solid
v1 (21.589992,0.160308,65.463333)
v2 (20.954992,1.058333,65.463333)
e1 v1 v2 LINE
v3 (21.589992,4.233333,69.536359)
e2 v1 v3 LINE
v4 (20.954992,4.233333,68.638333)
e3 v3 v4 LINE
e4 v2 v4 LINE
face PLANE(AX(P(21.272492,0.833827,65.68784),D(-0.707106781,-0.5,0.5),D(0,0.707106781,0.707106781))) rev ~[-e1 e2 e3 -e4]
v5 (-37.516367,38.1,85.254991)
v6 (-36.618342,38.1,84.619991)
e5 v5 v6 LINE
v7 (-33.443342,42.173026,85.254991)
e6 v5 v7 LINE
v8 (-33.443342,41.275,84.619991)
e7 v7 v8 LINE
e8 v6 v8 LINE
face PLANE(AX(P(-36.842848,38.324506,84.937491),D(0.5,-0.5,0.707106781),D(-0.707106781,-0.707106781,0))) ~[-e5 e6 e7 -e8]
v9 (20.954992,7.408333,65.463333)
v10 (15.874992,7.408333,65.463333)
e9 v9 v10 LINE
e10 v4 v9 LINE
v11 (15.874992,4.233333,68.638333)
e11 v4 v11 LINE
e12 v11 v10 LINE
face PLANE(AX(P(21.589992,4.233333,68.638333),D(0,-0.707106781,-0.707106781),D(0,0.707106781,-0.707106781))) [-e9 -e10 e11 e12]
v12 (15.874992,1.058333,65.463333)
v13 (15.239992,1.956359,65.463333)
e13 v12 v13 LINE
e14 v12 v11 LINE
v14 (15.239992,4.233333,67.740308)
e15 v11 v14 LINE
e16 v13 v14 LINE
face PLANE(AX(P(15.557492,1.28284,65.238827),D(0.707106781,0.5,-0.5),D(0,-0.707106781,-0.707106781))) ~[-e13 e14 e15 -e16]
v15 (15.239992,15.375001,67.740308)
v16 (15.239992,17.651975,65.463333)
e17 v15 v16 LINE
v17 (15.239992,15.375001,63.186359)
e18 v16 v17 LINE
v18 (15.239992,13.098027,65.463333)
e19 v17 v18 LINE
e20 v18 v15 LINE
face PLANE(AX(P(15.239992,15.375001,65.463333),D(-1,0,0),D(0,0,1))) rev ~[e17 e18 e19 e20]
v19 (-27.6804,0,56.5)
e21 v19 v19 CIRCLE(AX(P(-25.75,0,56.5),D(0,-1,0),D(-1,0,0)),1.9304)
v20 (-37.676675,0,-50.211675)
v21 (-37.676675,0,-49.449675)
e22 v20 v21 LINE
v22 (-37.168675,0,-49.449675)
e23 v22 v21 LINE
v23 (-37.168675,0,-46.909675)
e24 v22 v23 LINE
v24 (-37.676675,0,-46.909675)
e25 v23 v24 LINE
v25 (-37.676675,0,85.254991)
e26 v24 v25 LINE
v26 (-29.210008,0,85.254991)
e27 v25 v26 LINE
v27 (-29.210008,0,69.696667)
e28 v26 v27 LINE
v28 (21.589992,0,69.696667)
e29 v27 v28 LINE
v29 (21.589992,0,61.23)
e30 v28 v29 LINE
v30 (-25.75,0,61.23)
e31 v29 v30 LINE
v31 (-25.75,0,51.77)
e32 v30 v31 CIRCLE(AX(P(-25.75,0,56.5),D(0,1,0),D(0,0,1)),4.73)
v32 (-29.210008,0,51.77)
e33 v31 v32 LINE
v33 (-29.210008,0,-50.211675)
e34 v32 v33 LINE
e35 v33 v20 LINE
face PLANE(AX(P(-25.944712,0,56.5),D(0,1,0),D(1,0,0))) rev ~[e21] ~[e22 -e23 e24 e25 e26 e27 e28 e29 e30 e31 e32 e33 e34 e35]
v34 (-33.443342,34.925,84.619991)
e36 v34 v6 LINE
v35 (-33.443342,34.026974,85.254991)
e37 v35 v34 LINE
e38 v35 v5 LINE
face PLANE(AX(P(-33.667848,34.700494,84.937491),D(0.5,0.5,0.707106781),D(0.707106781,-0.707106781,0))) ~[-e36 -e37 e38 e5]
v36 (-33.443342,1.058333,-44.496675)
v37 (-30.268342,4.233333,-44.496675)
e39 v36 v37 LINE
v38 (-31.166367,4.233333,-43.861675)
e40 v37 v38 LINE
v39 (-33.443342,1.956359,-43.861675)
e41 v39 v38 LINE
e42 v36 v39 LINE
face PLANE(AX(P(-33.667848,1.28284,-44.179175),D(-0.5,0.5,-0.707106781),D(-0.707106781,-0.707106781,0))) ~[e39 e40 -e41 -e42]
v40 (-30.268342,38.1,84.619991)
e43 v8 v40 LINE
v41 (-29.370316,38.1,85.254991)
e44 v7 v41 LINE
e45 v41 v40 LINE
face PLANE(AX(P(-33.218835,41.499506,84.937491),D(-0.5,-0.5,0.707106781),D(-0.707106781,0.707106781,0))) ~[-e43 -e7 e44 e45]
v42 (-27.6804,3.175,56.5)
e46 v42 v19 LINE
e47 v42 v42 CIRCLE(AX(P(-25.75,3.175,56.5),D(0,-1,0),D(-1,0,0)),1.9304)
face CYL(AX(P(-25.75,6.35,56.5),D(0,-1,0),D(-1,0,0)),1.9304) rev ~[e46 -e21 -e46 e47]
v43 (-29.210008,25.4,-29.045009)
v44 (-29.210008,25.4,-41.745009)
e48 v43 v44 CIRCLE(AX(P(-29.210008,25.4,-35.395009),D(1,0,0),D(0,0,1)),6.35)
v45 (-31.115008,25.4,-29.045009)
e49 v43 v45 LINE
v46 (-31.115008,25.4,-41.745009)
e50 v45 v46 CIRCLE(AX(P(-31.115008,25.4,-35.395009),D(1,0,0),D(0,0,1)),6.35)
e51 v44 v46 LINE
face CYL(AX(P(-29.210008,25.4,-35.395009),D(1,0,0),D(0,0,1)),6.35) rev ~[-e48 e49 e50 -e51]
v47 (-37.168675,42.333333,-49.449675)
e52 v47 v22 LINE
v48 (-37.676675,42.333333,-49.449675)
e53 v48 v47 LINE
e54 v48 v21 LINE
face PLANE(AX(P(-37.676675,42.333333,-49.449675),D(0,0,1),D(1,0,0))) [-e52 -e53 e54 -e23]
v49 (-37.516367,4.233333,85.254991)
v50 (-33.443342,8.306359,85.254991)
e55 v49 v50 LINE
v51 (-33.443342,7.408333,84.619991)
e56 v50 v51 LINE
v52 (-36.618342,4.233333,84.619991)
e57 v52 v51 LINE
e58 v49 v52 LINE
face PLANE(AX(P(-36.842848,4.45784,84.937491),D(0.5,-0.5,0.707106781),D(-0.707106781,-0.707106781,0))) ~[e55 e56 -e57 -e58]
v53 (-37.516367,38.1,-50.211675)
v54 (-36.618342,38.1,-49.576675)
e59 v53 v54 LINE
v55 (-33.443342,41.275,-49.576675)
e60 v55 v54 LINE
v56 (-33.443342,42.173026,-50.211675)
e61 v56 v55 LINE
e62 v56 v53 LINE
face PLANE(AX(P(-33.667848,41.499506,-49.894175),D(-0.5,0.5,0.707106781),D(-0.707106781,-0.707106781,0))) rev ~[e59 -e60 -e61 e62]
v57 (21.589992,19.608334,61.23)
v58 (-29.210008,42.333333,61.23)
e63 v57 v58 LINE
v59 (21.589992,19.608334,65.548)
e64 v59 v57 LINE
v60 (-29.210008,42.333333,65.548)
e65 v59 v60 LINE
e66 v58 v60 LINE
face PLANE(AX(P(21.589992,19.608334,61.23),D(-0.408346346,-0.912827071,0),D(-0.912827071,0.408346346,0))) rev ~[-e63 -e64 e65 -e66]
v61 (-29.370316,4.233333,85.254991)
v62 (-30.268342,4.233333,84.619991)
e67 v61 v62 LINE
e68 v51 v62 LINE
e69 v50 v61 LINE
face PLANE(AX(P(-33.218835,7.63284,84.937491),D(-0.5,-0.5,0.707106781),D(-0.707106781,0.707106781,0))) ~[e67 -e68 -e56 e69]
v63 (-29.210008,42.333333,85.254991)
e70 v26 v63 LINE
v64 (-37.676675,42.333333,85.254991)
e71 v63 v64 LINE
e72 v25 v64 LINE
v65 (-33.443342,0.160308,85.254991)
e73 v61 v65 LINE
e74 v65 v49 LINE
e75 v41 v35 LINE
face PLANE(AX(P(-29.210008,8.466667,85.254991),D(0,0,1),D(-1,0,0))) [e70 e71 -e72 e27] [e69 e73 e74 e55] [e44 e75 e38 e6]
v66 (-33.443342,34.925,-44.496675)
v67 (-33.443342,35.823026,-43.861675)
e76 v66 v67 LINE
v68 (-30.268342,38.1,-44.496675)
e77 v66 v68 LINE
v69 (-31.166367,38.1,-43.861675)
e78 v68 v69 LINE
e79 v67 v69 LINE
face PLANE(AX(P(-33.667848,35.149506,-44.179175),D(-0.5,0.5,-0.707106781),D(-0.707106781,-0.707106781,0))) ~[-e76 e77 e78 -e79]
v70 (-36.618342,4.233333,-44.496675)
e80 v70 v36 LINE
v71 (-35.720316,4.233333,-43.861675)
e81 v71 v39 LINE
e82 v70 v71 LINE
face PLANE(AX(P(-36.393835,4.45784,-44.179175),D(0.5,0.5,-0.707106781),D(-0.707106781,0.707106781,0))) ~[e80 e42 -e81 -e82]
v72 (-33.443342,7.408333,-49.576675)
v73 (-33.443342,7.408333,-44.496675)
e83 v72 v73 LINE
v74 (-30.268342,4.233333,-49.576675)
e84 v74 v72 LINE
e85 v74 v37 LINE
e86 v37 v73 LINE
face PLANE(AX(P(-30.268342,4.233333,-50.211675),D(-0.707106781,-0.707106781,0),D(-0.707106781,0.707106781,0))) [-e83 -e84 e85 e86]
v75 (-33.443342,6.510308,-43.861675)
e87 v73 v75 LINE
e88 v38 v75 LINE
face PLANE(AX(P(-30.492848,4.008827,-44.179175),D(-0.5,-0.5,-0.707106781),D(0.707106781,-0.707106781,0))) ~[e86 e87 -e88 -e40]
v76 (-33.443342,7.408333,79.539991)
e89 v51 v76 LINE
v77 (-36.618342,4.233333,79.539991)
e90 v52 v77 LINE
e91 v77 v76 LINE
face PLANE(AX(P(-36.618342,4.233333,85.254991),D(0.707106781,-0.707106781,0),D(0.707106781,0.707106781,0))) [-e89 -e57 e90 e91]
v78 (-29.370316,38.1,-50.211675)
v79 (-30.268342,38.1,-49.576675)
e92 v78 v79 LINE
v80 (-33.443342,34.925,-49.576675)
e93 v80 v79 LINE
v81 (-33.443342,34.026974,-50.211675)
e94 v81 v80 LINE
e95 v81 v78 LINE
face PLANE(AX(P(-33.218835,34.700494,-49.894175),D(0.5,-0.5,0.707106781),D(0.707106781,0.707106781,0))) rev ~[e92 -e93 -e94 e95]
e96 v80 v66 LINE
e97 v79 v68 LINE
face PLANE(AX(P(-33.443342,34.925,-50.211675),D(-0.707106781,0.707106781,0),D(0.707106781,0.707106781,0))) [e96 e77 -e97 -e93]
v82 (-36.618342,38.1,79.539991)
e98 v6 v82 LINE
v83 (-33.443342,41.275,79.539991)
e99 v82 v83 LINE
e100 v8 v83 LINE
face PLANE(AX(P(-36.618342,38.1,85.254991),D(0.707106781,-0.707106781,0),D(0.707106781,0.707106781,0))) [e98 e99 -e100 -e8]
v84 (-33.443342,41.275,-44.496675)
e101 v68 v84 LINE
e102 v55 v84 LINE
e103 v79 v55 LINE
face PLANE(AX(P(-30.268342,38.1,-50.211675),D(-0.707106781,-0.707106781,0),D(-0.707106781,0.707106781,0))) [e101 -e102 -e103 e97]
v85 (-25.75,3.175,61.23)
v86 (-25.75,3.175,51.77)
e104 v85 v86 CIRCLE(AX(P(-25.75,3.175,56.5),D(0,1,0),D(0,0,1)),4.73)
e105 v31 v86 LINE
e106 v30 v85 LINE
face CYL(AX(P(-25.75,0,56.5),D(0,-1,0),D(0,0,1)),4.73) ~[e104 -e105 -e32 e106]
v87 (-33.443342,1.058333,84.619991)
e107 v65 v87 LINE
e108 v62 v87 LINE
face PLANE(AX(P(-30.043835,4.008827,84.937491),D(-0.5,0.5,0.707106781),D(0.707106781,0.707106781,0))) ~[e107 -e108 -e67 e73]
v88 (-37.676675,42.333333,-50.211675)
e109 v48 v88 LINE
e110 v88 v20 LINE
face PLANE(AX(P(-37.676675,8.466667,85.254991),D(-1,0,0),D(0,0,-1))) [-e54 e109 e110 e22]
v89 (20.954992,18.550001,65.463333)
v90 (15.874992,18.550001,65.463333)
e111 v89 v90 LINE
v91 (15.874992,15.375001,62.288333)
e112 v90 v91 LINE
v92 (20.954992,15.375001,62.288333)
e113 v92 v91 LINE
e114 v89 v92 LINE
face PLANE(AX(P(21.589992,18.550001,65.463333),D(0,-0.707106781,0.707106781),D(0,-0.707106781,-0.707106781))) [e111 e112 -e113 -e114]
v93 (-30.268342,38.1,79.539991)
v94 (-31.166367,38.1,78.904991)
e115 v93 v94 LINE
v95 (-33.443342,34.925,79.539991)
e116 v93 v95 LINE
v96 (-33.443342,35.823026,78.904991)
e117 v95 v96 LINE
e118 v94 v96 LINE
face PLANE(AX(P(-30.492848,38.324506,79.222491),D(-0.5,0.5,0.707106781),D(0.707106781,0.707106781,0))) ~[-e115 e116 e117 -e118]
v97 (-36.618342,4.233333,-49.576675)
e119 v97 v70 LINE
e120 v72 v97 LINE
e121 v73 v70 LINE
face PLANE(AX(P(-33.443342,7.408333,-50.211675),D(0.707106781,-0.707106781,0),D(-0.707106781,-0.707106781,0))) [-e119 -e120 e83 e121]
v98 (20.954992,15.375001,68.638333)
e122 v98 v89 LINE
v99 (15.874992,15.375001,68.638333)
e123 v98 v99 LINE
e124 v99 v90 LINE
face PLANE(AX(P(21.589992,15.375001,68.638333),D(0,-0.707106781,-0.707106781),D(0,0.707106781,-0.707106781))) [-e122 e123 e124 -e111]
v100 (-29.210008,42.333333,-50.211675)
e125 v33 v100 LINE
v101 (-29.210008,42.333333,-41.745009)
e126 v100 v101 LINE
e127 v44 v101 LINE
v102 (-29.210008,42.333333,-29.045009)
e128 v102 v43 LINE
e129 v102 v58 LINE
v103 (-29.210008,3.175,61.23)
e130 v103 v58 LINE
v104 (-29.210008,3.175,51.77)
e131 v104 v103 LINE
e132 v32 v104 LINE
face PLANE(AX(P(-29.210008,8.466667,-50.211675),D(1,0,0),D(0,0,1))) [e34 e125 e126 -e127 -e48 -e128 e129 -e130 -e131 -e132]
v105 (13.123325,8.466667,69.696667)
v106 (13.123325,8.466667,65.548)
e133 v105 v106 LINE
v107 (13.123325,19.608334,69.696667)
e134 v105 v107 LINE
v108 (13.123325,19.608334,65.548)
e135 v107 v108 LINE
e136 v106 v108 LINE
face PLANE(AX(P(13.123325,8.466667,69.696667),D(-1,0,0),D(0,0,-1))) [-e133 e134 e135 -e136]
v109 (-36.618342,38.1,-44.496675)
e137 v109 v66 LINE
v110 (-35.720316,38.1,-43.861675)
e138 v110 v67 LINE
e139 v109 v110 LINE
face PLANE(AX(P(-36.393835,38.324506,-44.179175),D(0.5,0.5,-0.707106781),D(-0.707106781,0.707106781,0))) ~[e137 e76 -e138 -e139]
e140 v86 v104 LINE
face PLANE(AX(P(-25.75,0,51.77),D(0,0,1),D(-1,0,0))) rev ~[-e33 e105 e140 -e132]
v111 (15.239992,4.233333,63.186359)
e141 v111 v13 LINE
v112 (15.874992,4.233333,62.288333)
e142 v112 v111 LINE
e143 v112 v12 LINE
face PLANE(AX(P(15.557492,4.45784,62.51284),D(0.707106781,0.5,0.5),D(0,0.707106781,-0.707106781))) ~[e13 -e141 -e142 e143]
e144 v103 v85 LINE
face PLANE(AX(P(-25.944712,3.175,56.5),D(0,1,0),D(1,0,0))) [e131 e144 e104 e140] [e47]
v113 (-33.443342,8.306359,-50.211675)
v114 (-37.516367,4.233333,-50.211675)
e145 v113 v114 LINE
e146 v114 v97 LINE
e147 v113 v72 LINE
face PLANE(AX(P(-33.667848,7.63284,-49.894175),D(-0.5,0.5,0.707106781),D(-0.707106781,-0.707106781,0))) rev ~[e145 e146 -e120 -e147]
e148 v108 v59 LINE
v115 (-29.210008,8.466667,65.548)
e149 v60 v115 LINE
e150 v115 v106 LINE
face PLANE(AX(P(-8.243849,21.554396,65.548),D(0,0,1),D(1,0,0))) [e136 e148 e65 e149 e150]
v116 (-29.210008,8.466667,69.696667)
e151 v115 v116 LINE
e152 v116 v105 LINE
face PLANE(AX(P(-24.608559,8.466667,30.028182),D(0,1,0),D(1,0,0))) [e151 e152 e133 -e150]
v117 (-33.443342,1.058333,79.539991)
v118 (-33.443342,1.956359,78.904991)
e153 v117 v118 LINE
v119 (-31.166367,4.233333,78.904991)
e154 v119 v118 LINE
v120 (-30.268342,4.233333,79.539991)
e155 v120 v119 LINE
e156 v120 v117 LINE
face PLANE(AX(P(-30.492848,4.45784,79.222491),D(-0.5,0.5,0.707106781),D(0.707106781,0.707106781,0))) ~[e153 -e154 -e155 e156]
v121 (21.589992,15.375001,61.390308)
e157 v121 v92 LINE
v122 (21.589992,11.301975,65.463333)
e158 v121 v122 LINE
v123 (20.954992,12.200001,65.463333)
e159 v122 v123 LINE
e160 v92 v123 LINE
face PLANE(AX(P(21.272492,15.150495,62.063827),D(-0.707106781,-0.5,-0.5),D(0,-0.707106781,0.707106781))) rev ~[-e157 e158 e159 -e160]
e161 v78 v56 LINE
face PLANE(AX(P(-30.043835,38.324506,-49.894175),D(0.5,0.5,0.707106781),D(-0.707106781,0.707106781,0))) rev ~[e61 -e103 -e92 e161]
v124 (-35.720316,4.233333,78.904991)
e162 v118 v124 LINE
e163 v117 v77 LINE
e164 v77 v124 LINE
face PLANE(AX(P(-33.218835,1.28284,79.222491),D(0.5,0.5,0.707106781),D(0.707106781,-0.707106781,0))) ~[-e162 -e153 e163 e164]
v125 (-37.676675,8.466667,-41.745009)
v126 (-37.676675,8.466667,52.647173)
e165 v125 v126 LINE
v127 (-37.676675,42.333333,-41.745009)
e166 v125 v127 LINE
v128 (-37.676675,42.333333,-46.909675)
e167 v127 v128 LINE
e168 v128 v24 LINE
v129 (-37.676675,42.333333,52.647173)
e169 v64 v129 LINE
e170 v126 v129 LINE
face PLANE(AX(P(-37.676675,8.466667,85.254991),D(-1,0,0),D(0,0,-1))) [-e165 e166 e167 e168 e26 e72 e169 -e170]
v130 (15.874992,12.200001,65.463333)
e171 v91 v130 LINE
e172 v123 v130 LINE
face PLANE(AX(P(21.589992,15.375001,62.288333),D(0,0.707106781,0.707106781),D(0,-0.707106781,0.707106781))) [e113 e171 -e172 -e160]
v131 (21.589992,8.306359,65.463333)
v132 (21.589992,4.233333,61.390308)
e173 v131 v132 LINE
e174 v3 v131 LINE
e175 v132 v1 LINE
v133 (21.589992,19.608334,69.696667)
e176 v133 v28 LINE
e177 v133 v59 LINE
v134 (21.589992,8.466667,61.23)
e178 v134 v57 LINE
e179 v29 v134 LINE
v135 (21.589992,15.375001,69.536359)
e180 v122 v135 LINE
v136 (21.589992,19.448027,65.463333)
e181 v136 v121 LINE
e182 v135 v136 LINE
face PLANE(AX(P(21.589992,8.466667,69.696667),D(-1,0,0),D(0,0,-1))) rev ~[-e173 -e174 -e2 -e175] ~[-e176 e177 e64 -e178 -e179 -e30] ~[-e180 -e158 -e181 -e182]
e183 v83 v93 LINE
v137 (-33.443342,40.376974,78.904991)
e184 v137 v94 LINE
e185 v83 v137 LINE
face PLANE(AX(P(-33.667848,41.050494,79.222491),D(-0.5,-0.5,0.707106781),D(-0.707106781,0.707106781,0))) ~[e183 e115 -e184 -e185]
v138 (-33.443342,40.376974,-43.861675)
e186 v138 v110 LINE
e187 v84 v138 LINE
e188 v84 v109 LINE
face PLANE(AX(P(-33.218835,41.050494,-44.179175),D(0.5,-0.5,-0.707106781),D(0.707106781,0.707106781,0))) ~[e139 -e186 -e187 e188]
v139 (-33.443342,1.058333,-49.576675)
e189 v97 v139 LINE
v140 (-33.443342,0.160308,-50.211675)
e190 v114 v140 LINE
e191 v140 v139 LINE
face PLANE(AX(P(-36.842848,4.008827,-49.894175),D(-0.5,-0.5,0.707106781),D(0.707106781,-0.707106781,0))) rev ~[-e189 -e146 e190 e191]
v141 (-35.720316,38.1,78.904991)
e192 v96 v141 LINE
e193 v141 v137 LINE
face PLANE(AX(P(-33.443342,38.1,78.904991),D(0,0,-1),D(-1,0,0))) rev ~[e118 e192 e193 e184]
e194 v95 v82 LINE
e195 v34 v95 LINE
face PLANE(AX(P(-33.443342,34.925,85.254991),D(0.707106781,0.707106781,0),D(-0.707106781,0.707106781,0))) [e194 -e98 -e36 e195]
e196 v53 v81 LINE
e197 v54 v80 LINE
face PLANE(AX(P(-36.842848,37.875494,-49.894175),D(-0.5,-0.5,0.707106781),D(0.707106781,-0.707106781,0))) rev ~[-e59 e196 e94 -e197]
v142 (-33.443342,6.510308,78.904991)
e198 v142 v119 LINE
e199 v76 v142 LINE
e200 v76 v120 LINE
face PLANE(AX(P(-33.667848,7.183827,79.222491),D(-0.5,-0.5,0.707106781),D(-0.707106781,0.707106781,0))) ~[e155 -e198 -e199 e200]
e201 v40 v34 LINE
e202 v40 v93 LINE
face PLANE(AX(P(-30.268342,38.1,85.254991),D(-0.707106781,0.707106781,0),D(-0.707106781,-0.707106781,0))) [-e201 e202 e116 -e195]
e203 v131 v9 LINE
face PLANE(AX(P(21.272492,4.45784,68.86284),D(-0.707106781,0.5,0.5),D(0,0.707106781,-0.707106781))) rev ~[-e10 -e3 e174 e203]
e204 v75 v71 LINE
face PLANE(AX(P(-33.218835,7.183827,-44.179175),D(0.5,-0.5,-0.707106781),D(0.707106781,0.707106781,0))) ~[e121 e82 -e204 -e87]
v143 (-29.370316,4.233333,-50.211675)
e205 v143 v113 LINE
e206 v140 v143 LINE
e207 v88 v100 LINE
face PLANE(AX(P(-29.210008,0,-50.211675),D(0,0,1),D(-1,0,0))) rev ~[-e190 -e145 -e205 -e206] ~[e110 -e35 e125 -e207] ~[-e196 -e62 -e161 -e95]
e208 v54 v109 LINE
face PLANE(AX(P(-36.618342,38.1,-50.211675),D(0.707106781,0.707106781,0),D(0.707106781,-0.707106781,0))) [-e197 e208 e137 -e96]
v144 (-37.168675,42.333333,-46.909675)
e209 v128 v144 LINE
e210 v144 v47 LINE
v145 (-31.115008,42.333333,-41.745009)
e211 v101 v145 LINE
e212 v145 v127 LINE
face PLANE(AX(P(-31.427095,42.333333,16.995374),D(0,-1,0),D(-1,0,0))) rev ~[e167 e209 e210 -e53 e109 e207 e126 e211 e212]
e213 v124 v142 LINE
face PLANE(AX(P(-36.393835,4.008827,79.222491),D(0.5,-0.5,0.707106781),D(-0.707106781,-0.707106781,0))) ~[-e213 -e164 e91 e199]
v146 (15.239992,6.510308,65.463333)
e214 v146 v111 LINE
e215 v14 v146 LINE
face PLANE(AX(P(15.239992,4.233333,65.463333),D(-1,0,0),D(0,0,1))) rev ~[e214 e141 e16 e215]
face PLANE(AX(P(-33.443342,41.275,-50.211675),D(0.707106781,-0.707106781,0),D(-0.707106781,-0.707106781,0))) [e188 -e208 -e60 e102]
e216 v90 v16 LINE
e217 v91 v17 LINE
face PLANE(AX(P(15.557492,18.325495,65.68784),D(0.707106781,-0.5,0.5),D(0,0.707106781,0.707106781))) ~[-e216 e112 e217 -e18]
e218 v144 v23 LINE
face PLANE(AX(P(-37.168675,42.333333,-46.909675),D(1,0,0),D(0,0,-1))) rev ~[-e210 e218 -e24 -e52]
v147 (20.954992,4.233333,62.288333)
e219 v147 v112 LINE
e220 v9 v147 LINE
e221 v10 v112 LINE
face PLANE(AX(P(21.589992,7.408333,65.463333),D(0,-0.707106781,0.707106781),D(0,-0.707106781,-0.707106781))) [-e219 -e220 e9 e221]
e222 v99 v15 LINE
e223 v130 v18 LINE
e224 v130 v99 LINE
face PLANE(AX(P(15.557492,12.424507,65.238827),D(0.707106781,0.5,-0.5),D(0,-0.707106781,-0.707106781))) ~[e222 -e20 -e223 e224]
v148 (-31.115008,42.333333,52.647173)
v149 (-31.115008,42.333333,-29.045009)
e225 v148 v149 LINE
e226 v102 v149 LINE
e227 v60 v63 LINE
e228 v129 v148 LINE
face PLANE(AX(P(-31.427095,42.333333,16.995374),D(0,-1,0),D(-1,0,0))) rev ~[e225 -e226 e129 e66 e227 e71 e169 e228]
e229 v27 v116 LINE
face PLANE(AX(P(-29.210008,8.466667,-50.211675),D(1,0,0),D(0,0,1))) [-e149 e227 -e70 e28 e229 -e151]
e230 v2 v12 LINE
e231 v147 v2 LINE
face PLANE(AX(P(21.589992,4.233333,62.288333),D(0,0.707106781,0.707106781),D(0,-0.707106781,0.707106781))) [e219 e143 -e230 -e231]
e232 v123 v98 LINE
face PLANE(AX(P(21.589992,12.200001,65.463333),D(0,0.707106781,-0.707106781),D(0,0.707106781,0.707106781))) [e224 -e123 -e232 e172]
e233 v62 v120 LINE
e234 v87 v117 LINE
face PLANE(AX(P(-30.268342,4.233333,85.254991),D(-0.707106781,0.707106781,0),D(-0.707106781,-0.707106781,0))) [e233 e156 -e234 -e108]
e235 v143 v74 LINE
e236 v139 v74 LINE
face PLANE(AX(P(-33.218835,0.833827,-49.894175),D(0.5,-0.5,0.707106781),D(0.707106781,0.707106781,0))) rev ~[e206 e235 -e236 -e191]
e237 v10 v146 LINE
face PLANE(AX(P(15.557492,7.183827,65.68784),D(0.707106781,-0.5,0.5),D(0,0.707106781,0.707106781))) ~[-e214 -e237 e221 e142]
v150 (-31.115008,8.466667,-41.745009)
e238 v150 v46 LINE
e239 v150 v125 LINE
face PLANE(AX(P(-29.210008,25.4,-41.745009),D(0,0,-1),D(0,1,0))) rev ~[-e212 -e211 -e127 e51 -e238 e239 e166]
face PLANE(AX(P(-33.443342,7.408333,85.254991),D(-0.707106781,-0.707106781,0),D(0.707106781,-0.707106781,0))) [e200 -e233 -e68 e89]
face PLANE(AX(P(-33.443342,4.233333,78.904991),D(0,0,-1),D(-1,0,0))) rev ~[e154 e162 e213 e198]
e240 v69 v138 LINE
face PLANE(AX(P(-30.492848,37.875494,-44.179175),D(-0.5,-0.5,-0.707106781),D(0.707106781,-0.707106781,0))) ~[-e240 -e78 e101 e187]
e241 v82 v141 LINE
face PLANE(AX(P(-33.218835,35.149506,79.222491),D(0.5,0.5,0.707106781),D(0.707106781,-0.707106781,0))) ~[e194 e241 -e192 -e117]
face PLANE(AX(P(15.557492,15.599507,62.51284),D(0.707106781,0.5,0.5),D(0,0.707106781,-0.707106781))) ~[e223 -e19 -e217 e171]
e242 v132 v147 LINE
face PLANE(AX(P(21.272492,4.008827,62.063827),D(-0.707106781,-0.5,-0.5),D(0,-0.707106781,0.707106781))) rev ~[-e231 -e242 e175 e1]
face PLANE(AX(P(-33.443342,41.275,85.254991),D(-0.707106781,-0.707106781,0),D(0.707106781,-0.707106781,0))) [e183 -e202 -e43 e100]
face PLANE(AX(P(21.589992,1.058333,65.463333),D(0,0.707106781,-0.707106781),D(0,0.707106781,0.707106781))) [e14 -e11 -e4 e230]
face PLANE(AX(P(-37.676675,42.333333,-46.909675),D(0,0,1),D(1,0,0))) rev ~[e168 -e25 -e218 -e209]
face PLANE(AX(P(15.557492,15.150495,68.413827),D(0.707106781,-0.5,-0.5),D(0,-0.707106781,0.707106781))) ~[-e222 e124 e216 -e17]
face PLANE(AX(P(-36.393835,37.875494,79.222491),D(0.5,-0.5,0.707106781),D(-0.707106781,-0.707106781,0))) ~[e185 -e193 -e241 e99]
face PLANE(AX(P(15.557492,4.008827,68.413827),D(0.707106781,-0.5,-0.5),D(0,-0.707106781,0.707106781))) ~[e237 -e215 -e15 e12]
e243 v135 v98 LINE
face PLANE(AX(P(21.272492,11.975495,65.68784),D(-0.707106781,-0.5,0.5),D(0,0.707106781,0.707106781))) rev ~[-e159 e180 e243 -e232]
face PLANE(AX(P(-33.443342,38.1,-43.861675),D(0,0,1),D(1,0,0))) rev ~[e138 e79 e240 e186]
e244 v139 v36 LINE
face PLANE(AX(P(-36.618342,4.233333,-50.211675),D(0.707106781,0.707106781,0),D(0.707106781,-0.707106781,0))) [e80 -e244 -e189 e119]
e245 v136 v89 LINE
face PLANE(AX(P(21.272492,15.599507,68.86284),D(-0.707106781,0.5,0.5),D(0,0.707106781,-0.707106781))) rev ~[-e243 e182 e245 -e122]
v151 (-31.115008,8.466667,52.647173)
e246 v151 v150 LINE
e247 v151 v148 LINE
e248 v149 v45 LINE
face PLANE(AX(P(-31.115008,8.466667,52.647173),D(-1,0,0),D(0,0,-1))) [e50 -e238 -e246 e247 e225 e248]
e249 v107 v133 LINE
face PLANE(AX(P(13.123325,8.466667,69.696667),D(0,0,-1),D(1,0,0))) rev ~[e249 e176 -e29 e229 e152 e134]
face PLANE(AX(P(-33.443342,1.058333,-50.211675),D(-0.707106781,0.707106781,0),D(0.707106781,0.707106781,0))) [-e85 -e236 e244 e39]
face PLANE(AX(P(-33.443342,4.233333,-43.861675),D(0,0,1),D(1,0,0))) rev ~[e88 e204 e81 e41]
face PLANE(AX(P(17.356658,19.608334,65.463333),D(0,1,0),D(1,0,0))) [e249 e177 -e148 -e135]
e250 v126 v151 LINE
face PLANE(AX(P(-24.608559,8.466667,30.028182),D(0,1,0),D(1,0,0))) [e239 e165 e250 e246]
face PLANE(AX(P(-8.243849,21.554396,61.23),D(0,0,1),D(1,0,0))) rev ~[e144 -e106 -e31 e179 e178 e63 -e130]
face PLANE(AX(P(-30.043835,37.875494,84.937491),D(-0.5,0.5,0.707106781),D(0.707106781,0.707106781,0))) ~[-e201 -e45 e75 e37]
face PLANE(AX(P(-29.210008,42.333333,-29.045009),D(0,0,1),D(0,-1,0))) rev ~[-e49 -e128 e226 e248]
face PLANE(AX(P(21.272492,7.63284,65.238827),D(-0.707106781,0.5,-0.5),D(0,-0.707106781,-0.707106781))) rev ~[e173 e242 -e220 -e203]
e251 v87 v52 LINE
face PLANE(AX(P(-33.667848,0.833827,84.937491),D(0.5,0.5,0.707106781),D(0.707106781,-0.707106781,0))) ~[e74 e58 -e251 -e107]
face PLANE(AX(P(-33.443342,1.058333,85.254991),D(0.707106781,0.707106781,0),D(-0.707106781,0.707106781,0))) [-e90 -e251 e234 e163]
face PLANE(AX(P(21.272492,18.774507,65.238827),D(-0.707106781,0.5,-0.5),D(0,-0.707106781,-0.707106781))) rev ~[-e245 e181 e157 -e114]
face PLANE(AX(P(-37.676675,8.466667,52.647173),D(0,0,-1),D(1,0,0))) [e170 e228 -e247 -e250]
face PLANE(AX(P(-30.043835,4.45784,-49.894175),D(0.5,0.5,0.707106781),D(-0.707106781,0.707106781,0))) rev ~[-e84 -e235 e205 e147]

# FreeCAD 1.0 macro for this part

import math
import FreeCAD as App
import Part
import Sketcher
Q = App.Units.Quantity


def edges_at(feature, points):
    """Names of the edges that pass closest to the given points."""
    edges = feature.Shape.Edges
    near = lambda p: min(range(len(edges)), key=lambda i: edges[i].distToShape(Part.Vertex(*p))[0])
    return sorted({f"Edge{near(p) + 1}" for p in points})

doc = App.newDocument("Part")
params = doc.addObject("Spreadsheet::Sheet", "Params")
for row, (alias, value) in enumerate([
    ("sketch1_width", "2 in"),
    ("pad1_length", "8.466667 mm"),
    ("pad2_length", "0.125 in"),
    ("sketch3_diameter", "0.152 in"),
    ("hole_diameter", "0.152 in"),
    ("hole_depth", "0.125 in"),
    ("pad3_length", "33.866667 mm"),
    ("pad4_length", "11.141668 mm"),
    ("pad5_length", "0.17 in"),
    ("pocket1_length", "0.25 in"),
    ("pocket2_length", "0.25 in"),
    ("pocket3_length", "0.25 in"),
    ("chamfer_size", "0.025 in"),
    ("sketch10_radius", "0.25 in"),
    ("sketch11_height", "0.1 in"),
    ("sketch11_width", "0.02 in"),
], start=1):
    params.set(f"A{row}", alias)
    params.set(f"B{row}", "=" + value)
    params.setAlias(f"B{row}", alias)

body = doc.addObject("PartDesign::Body", "Body")

# Sketch on XZ plane
sketch1 = body.newObject("Sketcher::SketchObject", "Sketch")
sketch1.AttachmentSupport = (doc.getObject("XZ_Plane"), [""])
sketch1.MapMode = "FlatFace"
sketch1.addGeometry([
    Part.LineSegment(App.Vector(-29, -50, 0), App.Vector(-38, -50, 0)),  # 0
    Part.LineSegment(App.Vector(-38, -50, 0), App.Vector(-38, 85, 0)),  # 1
    Part.LineSegment(App.Vector(-38, 85, 0), App.Vector(-29, 85, 0)),  # 2
    Part.LineSegment(App.Vector(-29, 85, 0), App.Vector(-29, 70, 0)),  # 3
    Part.LineSegment(App.Vector(-29, 70, 0), App.Vector(22, 70, 0)),  # 4
    Part.LineSegment(App.Vector(22, 70, 0), App.Vector(22, 61, 0)),  # 5
    Part.LineSegment(App.Vector(22, 61, 0), App.Vector(-29, 61, 0)),  # 6
    Part.LineSegment(App.Vector(-29, 61, 0), App.Vector(-29, -50, 0)),  # 7
], False)
sketch1.addConstraint([
    Sketcher.Constraint("Coincident", 0, 2, 1, 1),
    Sketcher.Constraint("Coincident", 1, 2, 2, 1),
    Sketcher.Constraint("Coincident", 2, 2, 3, 1),
    Sketcher.Constraint("Coincident", 3, 2, 4, 1),
    Sketcher.Constraint("Coincident", 4, 2, 5, 1),
    Sketcher.Constraint("Coincident", 5, 2, 6, 1),
    Sketcher.Constraint("Coincident", 6, 2, 7, 1),
    Sketcher.Constraint("Coincident", 7, 2, 0, 1),
    Sketcher.Constraint("Horizontal", 0),
    Sketcher.Constraint("Vertical", 1),
    Sketcher.Constraint("Horizontal", 2),
    Sketcher.Constraint("Vertical", 3),
    Sketcher.Constraint("Horizontal", 4),
    Sketcher.Constraint("Vertical", 5),
    Sketcher.Constraint("Horizontal", 6),
    Sketcher.Constraint("Vertical", 7),
    Sketcher.Constraint("Vertical", 3, 2, 6, 2),
    Sketcher.Constraint("Equal", 2, 5),
    Sketcher.Constraint("DistanceX", 4, 1, 4, 2, Q("2 in")),
    Sketcher.Constraint("DistanceY", -1, 1, 5, 2, Q("61.23 mm")),
    Sketcher.Constraint("DistanceX", 0, 2, 0, 1, Q("8.466667 mm")),
    Sketcher.Constraint("DistanceY", 1, 1, 1, 2, Q("135.466667 mm")),
    Sketcher.Constraint("DistanceY", 3, 2, 3, 1, Q("15.558325 mm")),
    Sketcher.Constraint("DistanceX", 2, 2, -1, 1, Q("29.210008 mm")),
])
sketch1.setExpression("Constraints[18]", "Params.sketch1_width")
pad1 = body.newObject("PartDesign::Pad", "Pad")
pad1.Profile = sketch1
pad1.setExpression("Length", "Params.pad1_length")
pad1.Reversed = True

# Sketch on XZ plane
sketch2 = body.newObject("Sketcher::SketchObject", "Sketch001")
sketch2.AttachmentSupport = (doc.getObject("XZ_Plane"), [""])
sketch2.MapMode = "FlatFace"
sketch2.addGeometry([
    Part.LineSegment(App.Vector(-25.8, 51.8, 0), App.Vector(-29.2, 51.8, 0)),
    Part.LineSegment(App.Vector(-29.2, 51.8, 0), App.Vector(-29.2, 61.2, 0)),
    Part.LineSegment(App.Vector(-29.2, 61.2, 0), App.Vector(-25.8, 61.2, 0)),
    Part.ArcOfCircle(Part.Circle(App.Vector(-25.8, 56.5, 0), App.Vector(0, 0, 1), 4.7), math.radians(-90), math.radians(90)),
], False)
sketch2.addConstraint([
    Sketcher.Constraint("Coincident", 0, 2, 1, 1),
    Sketcher.Constraint("Coincident", 1, 2, 2, 1),
    Sketcher.Constraint("Tangent", 2, 2, 3, 2),
    Sketcher.Constraint("Tangent", 3, 1, 0, 1),
    Sketcher.Constraint("Horizontal", 0),
    Sketcher.Constraint("Vertical", 1),
    Sketcher.Constraint("Horizontal", 2),
    Sketcher.Constraint("Radius", 3, Q("4.73 mm")),
    Sketcher.Constraint("DistanceX", 0, 2, 0, 1, Q("3.460008 mm")),
    Sketcher.Constraint("DistanceX", 3, 3, -1, 1, Q("25.75 mm")),
    Sketcher.Constraint("DistanceY", -1, 1, 3, 3, Q("56.5 mm")),
])
pad2 = body.newObject("PartDesign::Pad", "Pad001")
pad2.Profile = sketch2
pad2.setExpression("Length", "Params.pad2_length")
pad2.Reversed = True

# Sketch on XZ plane
sketch3 = body.newObject("Sketcher::SketchObject", "Sketch002")
sketch3.AttachmentSupport = (doc.getObject("XZ_Plane"), [""])
sketch3.MapMode = "FlatFace"
sketch3.AttachmentOffset = App.Placement(App.Vector(0, 0, -0.125 * 25.4), App.Rotation())
sketch3.addGeometry([
    Part.Circle(App.Vector(-25.8, -56.5, 0), App.Vector(0, 0, 1), 1.9),
    Part.Circle(App.Vector(-25.8, 56.5, 0), App.Vector(0, 0, 1), 1.9),
], False)
sketch3.addConstraint([
    Sketcher.Constraint("Equal", 0, 1),
    Sketcher.Constraint("Symmetric", 0, 3, 1, 3, -1),
    Sketcher.Constraint("Diameter", 0, Q("0.152 in")),
    Sketcher.Constraint("DistanceX", 0, 3, -1, 1, Q("25.75 mm")),
    Sketcher.Constraint("DistanceY", 0, 3, -1, 1, Q("56.5 mm")),
])
sketch3.setExpression("Constraints[2]", "Params.sketch3_diameter")
doc.recompute()
hole = body.newObject("PartDesign::Hole", "Hole")
hole.Profile = sketch3
hole.ThreadType = "None"
hole.setExpression("Diameter", "Params.hole_diameter")
hole.DepthType = "Dimension"
hole.setExpression("Depth", "Params.hole_depth")
hole.DrillPoint = "Flat"
hole.Reversed = True

# Sketch on XZ plane
sketch4 = body.newObject("Sketcher::SketchObject", "Sketch003")
sketch4.AttachmentSupport = (doc.getObject("XZ_Plane"), [""])
sketch4.MapMode = "FlatFace"
sketch4.AttachmentOffset = App.Placement(App.Vector(0, 0, -8.466667), App.Rotation())
sketch4.addGeometry([
    Part.LineSegment(App.Vector(-38, 53, 0), App.Vector(-38, 85, 0)),  # 0
    Part.LineSegment(App.Vector(-38, 85, 0), App.Vector(-29, 85, 0)),  # 1
    Part.LineSegment(App.Vector(-29, 85, 0), App.Vector(-29, -50, 0)),  # 2
    Part.LineSegment(App.Vector(-29, -50, 0), App.Vector(-38, -50, 0)),  # 3
    Part.LineSegment(App.Vector(-38, -50, 0), App.Vector(-38, -42, 0)),  # 4
    Part.LineSegment(App.Vector(-38, -42, 0), App.Vector(-31, -42, 0)),  # 5
    Part.LineSegment(App.Vector(-31, -42, 0), App.Vector(-31, 53, 0)),  # 6
    Part.LineSegment(App.Vector(-31, 53, 0), App.Vector(-38, 53, 0)),  # 7
], False)
sketch4.addConstraint([
    Sketcher.Constraint("Coincident", 0, 2, 1, 1),
    Sketcher.Constraint("Coincident", 1, 2, 2, 1),
    Sketcher.Constraint("Coincident", 2, 2, 3, 1),
    Sketcher.Constraint("Coincident", 3, 2, 4, 1),
    Sketcher.Constraint("Coincident", 4, 2, 5, 1),
    Sketcher.Constraint("Coincident", 5, 2, 6, 1),
    Sketcher.Constraint("Coincident", 6, 2, 7, 1),
    Sketcher.Constraint("Coincident", 7, 2, 0, 1),
    Sketcher.Constraint("Vertical", 0),
    Sketcher.Constraint("Horizontal", 1),
    Sketcher.Constraint("Vertical", 2),
    Sketcher.Constraint("Horizontal", 3),
    Sketcher.Constraint("Vertical", 4),
    Sketcher.Constraint("Horizontal", 5),
    Sketcher.Constraint("Vertical", 6),
    Sketcher.Constraint("Horizontal", 7),
    Sketcher.Constraint("Vertical", 0, 2, 3, 2),
    Sketcher.Constraint("Equal", 3, 4),
    Sketcher.Constraint("DistanceY", 4, 2, 0, 2, Q("5 in")),
    Sketcher.Constraint("DistanceX", 5, 2, 2, 2, Q("0.075 in")),
    Sketcher.Constraint("DistanceY", 0, 1, 0, 2, Q("32.607819 mm")),
    Sketcher.Constraint("DistanceX", 1, 1, 1, 2, Q("8.466667 mm")),
    Sketcher.Constraint("DistanceY", -1, 1, 0, 2, Q("85.254991 mm")),
    Sketcher.Constraint("DistanceX", 1, 2, -1, 1, Q("29.210008 mm")),
])
pad3 = body.newObject("PartDesign::Pad", "Pad002")
pad3.Profile = sketch4
pad3.setExpression("Length", "Params.pad3_length")
pad3.Reversed = True

# Sketch on XZ plane
sketch5 = body.newObject("Sketcher::SketchObject", "Sketch004")
sketch5.AttachmentSupport = (doc.getObject("XZ_Plane"), [""])
sketch5.MapMode = "FlatFace"
sketch5.AttachmentOffset = App.Placement(App.Vector(0, 0, -8.466667), App.Rotation())
sketch5.addGeometry([
    Part.LineSegment(App.Vector(13, 61, 0), App.Vector(13, 70, 0)),
    Part.LineSegment(App.Vector(13, 70, 0), App.Vector(22, 70, 0)),
    Part.LineSegment(App.Vector(22, 70, 0), App.Vector(22, 61, 0)),
    Part.LineSegment(App.Vector(22, 61, 0), App.Vector(13, 61, 0)),
], False)
sketch5.addConstraint([
    Sketcher.Constraint("Coincident", 0, 2, 1, 1),
    Sketcher.Constraint("Coincident", 1, 2, 2, 1),
    Sketcher.Constraint("Coincident", 2, 2, 3, 1),
    Sketcher.Constraint("Coincident", 3, 2, 0, 1),
    Sketcher.Constraint("Vertical", 0),
    Sketcher.Constraint("Horizontal", 1),
    Sketcher.Constraint("Vertical", 2),
    Sketcher.Constraint("Horizontal", 3),
    Sketcher.Constraint("Equal", 3, 0),
    Sketcher.Constraint("DistanceY", -1, 1, 2, 2, Q("61.23 mm")),
    Sketcher.Constraint("DistanceX", 1, 1, 1, 2, Q("8.466667 mm")),
    Sketcher.Constraint("DistanceX", -1, 1, 1, 2, Q("21.589992 mm")),
])
pad4 = body.newObject("PartDesign::Pad", "Pad003")
pad4.Profile = sketch5
pad4.setExpression("Length", "Params.pad4_length")
pad4.Reversed = True

# Sketch on XY plane
sketch6 = body.newObject("Sketcher::SketchObject", "Sketch005")
sketch6.AttachmentSupport = (doc.getObject("XY_Plane"), [""])
sketch6.MapMode = "FlatFace"
sketch6.AttachmentOffset = App.Placement(App.Vector(0, 0, 61.23), App.Rotation())
sketch6.addGeometry([
    Part.LineSegment(App.Vector(-29, 42, 0), App.Vector(22, 20, 0)),  # 0
    Part.LineSegment(App.Vector(22, 20, 0), App.Vector(13, 20, 0)),  # 1
    Part.LineSegment(App.Vector(13, 20, 0), App.Vector(13, 8, 0)),  # 2
    Part.LineSegment(App.Vector(13, 8, 0), App.Vector(-29, 8, 0)),  # 3
    Part.LineSegment(App.Vector(-29, 8, 0), App.Vector(-29, 42, 0)),  # 4
], False)
sketch6.addConstraint([
    Sketcher.Constraint("Coincident", 0, 2, 1, 1),
    Sketcher.Constraint("Coincident", 1, 2, 2, 1),
    Sketcher.Constraint("Coincident", 2, 2, 3, 1),
    Sketcher.Constraint("Coincident", 3, 2, 4, 1),
    Sketcher.Constraint("Coincident", 4, 2, 0, 1),
    Sketcher.Constraint("Horizontal", 1),
    Sketcher.Constraint("Vertical", 2),
    Sketcher.Constraint("Horizontal", 3),
    Sketcher.Constraint("Vertical", 4),
    Sketcher.Constraint("DistanceX", 3, 2, 0, 2, Q("2 in")),
    Sketcher.Constraint("DistanceY", 1, 2, 4, 2, Q("22.724999 mm")),
    Sketcher.Constraint("DistanceX", 1, 2, 1, 1, Q("8.466667 mm")),
    Sketcher.Constraint("DistanceY", 2, 2, 2, 1, Q("11.141668 mm")),
    Sketcher.Constraint("DistanceX", -1, 1, 0, 2, Q("21.589992 mm")),
    Sketcher.Constraint("DistanceY", -1, 1, 0, 2, Q("19.608334 mm")),
])
pad5 = body.newObject("PartDesign::Pad", "Pad004")
pad5.Profile = sketch6
pad5.setExpression("Length", "Params.pad5_length")

# Sketch on XY plane
sketch7 = body.newObject("Sketcher::SketchObject", "Sketch006")
sketch7.AttachmentSupport = (doc.getObject("XY_Plane"), [""])
sketch7.MapMode = "FlatFace"
sketch7.AttachmentOffset = App.Placement(App.Vector(0, 0, 85.254991), App.Rotation())
sketch7.addGeometry([
    Part.LineSegment(App.Vector(-33.4, 7.4, 0), App.Vector(-36.6, 4.2, 0)),  # 0
    Part.LineSegment(App.Vector(-36.6, 4.2, 0), App.Vector(-33.4, 1.1, 0)),  # 1
    Part.LineSegment(App.Vector(-33.4, 1.1, 0), App.Vector(-30.3, 4.2, 0)),  # 2
    Part.LineSegment(App.Vector(-30.3, 4.2, 0), App.Vector(-33.4, 7.4, 0)),  # 3
    Part.LineSegment(App.Vector(-33.4, 41.3, 0), App.Vector(-36.6, 38.1, 0)),  # 4
    Part.LineSegment(App.Vector(-36.6, 38.1, 0), App.Vector(-33.4, 34.9, 0)),  # 5
    Part.LineSegment(App.Vector(-33.4, 34.9, 0), App.Vector(-30.3, 38.1, 0)),  # 6
    Part.LineSegment(App.Vector(-30.3, 38.1, 0), App.Vector(-33.4, 41.3, 0)),  # 7
], False)
sketch7.addConstraint([
    Sketcher.Constraint("Coincident", 0, 2, 1, 1),
    Sketcher.Constraint("Coincident", 1, 2, 2, 1),
    Sketcher.Constraint("Coincident", 2, 2, 3, 1),
    Sketcher.Constraint("Coincident", 3, 2, 0, 1),
    Sketcher.Constraint("Coincident", 4, 2, 5, 1),
    Sketcher.Constraint("Coincident", 5, 2, 6, 1),
    Sketcher.Constraint("Coincident", 6, 2, 7, 1),
    Sketcher.Constraint("Coincident", 7, 2, 4, 1),
    Sketcher.Constraint("Perpendicular", 0, 1),
    Sketcher.Constraint("Perpendicular", 1, 2),
    Sketcher.Constraint("Perpendicular", 2, 3),
    Sketcher.Constraint("Perpendicular", 3, 4),
    Sketcher.Constraint("Perpendicular", 4, 5),
    Sketcher.Constraint("Perpendicular", 5, 6),
    Sketcher.Constraint("Perpendicular", 6, 7),
    Sketcher.Constraint("Horizontal", 0, 2, 2, 2),
    Sketcher.Constraint("Horizontal", 4, 2, 6, 2),
    Sketcher.Constraint("Vertical", 1, 2, 3, 2),
    Sketcher.Constraint("Vertical", 0, 2, 4, 2),
    Sketcher.Constraint("Vertical", 3, 2, 5, 2),
    Sketcher.Constraint("DistanceY", -1, 1, 4, 2, Q("1.5 in")),
    Sketcher.Constraint("DistanceX", 0, 2, 2, 2, Q("0.25 in")),
    Sketcher.Constraint("DistanceX", 0, 2, -1, 1, Q("36.618342 mm")),
    Sketcher.Constraint("DistanceY", -1, 1, 0, 2, Q("4.233333 mm")),
])
pocket1 = body.newObject("PartDesign::Pocket", "Pocket")
pocket1.Profile = sketch7
pocket1.setExpression("Length", "Params.pocket1_length")

# Sketch on XY plane
sketch8 = body.newObject("Sketcher::SketchObject", "Sketch007")
sketch8.AttachmentSupport = (doc.getObject("XY_Plane"), [""])
sketch8.MapMode = "FlatFace"
sketch8.AttachmentOffset = App.Placement(App.Vector(0, 0, -50.211675), App.Rotation())
sketch8.addGeometry([
    Part.LineSegment(App.Vector(-33.4, 7.4, 0), App.Vector(-30.3, 4.2, 0)),  # 0
    Part.LineSegment(App.Vector(-30.3, 4.2, 0), App.Vector(-33.4, 1.1, 0)),  # 1
    Part.LineSegment(App.Vector(-33.4, 1.1, 0), App.Vector(-36.6, 4.2, 0)),  # 2
    Part.LineSegment(App.Vector(-36.6, 4.2, 0), App.Vector(-33.4, 7.4, 0)),  # 3
    Part.LineSegment(App.Vector(-33.4, 41.3, 0), App.Vector(-30.3, 38.1, 0)),  # 4
    Part.LineSegment(App.Vector(-30.3, 38.1, 0), App.Vector(-33.4, 34.9, 0)),  # 5
    Part.LineSegment(App.Vector(-33.4, 34.9, 0), App.Vector(-36.6, 38.1, 0)),  # 6
    Part.LineSegment(App.Vector(-36.6, 38.1, 0), App.Vector(-33.4, 41.3, 0)),  # 7
], False)
sketch8.addConstraint([
    Sketcher.Constraint("Coincident", 0, 2, 1, 1),
    Sketcher.Constraint("Coincident", 1, 2, 2, 1),
    Sketcher.Constraint("Coincident", 2, 2, 3, 1),
    Sketcher.Constraint("Coincident", 3, 2, 0, 1),
    Sketcher.Constraint("Coincident", 4, 2, 5, 1),
    Sketcher.Constraint("Coincident", 5, 2, 6, 1),
    Sketcher.Constraint("Coincident", 6, 2, 7, 1),
    Sketcher.Constraint("Coincident", 7, 2, 4, 1),
    Sketcher.Constraint("Perpendicular", 0, 1),
    Sketcher.Constraint("Perpendicular", 1, 2),
    Sketcher.Constraint("Perpendicular", 2, 3),
    Sketcher.Constraint("Perpendicular", 3, 4),
    Sketcher.Constraint("Perpendicular", 4, 5),
    Sketcher.Constraint("Perpendicular", 5, 6),
    Sketcher.Constraint("Perpendicular", 6, 7),
    Sketcher.Constraint("Horizontal", 0, 2, 2, 2),
    Sketcher.Constraint("Horizontal", 4, 2, 6, 2),
    Sketcher.Constraint("Vertical", 1, 2, 3, 2),
    Sketcher.Constraint("Vertical", 0, 2, 4, 2),
    Sketcher.Constraint("Vertical", 3, 2, 5, 2),
    Sketcher.Constraint("DistanceY", -1, 1, 4, 2, Q("1.5 in")),
    Sketcher.Constraint("DistanceX", 2, 2, 0, 2, Q("0.25 in")),
    Sketcher.Constraint("DistanceX", 0, 2, -1, 1, Q("30.268342 mm")),
    Sketcher.Constraint("DistanceY", -1, 1, 0, 2, Q("4.233333 mm")),
])
pocket2 = body.newObject("PartDesign::Pocket", "Pocket001")
pocket2.Profile = sketch8
pocket2.setExpression("Length", "Params.pocket2_length")
pocket2.Reversed = True

# Sketch on YZ plane
sketch9 = body.newObject("Sketcher::SketchObject", "Sketch008")
sketch9.AttachmentSupport = (doc.getObject("YZ_Plane"), [""])
sketch9.MapMode = "FlatFace"
sketch9.AttachmentOffset = App.Placement(App.Vector(0, 0, 21.589992), App.Rotation())
sketch9.addGeometry([
    Part.LineSegment(App.Vector(7.4, 65.5, 0), App.Vector(4.2, 68.6, 0)),  # 0
    Part.LineSegment(App.Vector(4.2, 68.6, 0), App.Vector(1.1, 65.5, 0)),  # 1
    Part.LineSegment(App.Vector(1.1, 65.5, 0), App.Vector(4.2, 62.3, 0)),  # 2
    Part.LineSegment(App.Vector(4.2, 62.3, 0), App.Vector(7.4, 65.5, 0)),  # 3
    Part.LineSegment(App.Vector(18.6, 65.5, 0), App.Vector(15.4, 68.6, 0)),  # 4
    Part.LineSegment(App.Vector(15.4, 68.6, 0), App.Vector(12.2, 65.5, 0)),  # 5
    Part.LineSegment(App.Vector(12.2, 65.5, 0), App.Vector(15.4, 62.3, 0)),  # 6
    Part.LineSegment(App.Vector(15.4, 62.3, 0), App.Vector(18.6, 65.5, 0)),  # 7
], False)
sketch9.addConstraint([
    Sketcher.Constraint("Coincident", 0, 2, 1, 1),
    Sketcher.Constraint("Coincident", 1, 2, 2, 1),
    Sketcher.Constraint("Coincident", 2, 2, 3, 1),
    Sketcher.Constraint("Coincident", 3, 2, 0, 1),
    Sketcher.Constraint("Coincident", 4, 2, 5, 1),
    Sketcher.Constraint("Coincident", 5, 2, 6, 1),
    Sketcher.Constraint("Coincident", 6, 2, 7, 1),
    Sketcher.Constraint("Coincident", 7, 2, 4, 1),
    Sketcher.Constraint("Perpendicular", 0, 1),
    Sketcher.Constraint("Perpendicular", 1, 2),
    Sketcher.Constraint("Perpendicular", 2, 3),
    Sketcher.Constraint("Perpendicular", 3, 4),
    Sketcher.Constraint("Perpendicular", 4, 5),
    Sketcher.Constraint("Perpendicular", 5, 6),
    Sketcher.Constraint("Perpendicular", 6, 7),
    Sketcher.Constraint("Horizontal", 1, 2, 3, 2),
    Sketcher.Constraint("Horizontal", 0, 2, 4, 2),
    Sketcher.Constraint("Horizontal", 3, 2, 5, 2),
    Sketcher.Constraint("Horizontal", 2, 2, 6, 2),
    Sketcher.Constraint("Vertical", 0, 2, 2, 2),
    Sketcher.Constraint("DistanceY", 2, 2, 0, 2, Q("0.25 in")),
    Sketcher.Constraint("DistanceX", -1, 1, 4, 2, Q("15.375001 mm")),
    Sketcher.Constraint("DistanceX", -1, 1, 0, 2, Q("4.233333 mm")),
    Sketcher.Constraint("DistanceY", -1, 1, 0, 2, Q("68.638333 mm")),
])
pocket3 = body.newObject("PartDesign::Pocket", "Pocket002")
pocket3.Profile = sketch9
pocket3.setExpression("Length", "Params.pocket3_length")
doc.recompute()

chamfer = body.newObject("PartDesign::Chamfer", "Chamfer")
chamfer.Base = (pocket3, edges_at(pocket3, [
    (-35.031, 2.646, 78.905),
    (-35.031, 5.821, 78.905),
    (-31.856, 5.821, 78.905),
    (-31.856, 2.646, 78.905),
    (-35.031, 2.646, 85.255),
    (-31.856, 2.646, 85.255),
    (-31.856, 5.821, 85.255),
    (-35.031, 5.821, 85.255),
    (-35.031, 36.513, 78.905),
    (-35.031, 39.688, 78.905),
    (-31.856, 39.688, 78.905),
    (-31.856, 36.513, 78.905),
    (-35.031, 36.513, 85.255),
    (-31.856, 36.513, 85.255),
    (-31.856, 39.688, 85.255),
    (-35.031, 39.688, 85.255),
    (-31.856, 2.646, -43.862),
    (-31.856, 5.821, -43.862),
    (-35.031, 5.821, -43.862),
    (-35.031, 2.646, -43.862),
    (-31.856, 2.646, -50.212),
    (-35.031, 2.646, -50.212),
    (-35.031, 5.821, -50.212),
    (-31.856, 5.821, -50.212),
    (-31.856, 36.513, -43.862),
    (-31.856, 39.688, -43.862),
    (-35.031, 39.688, -43.862),
    (-35.031, 36.513, -43.862),
    (-31.856, 36.513, -50.212),
    (-35.031, 36.513, -50.212),
    (-35.031, 39.688, -50.212),
    (-31.856, 39.688, -50.212),
    (15.24, 2.646, 67.051),
    (15.24, 5.821, 67.051),
    (15.24, 5.821, 63.876),
    (15.24, 2.646, 63.876),
    (21.59, 2.646, 67.051),
    (21.59, 2.646, 63.876),
    (21.59, 5.821, 63.876),
    (21.59, 5.821, 67.051),
    (15.24, 13.788, 67.051),
    (15.24, 16.963, 67.051),
    (15.24, 16.963, 63.876),
    (15.24, 13.788, 63.876),
    (21.59, 13.788, 67.051),
    (21.59, 13.788, 63.876),
    (21.59, 16.963, 63.876),
    (21.59, 16.963, 67.051),
]))
chamfer.setExpression("Size", "Params.chamfer_size")

# Sketch on YZ plane
sketch10 = body.newObject("Sketcher::SketchObject", "Sketch009")
sketch10.AttachmentSupport = (doc.getObject("YZ_Plane"), [""])
sketch10.MapMode = "FlatFace"
sketch10.AttachmentOffset = App.Placement(App.Vector(0, 0, -29.210008), App.Rotation())
sketch10.addGeometry([
    Part.LineSegment(App.Vector(25, -42, 0), App.Vector(42, -42, 0)),
    Part.LineSegment(App.Vector(42, -42, 0), App.Vector(42, -29, 0)),
    Part.LineSegment(App.Vector(42, -29, 0), App.Vector(25, -29, 0)),
    Part.ArcOfCircle(Part.Circle(App.Vector(25, -35, 0), App.Vector(0, 0, 1), 6), math.radians(90), math.radians(270)),
], False)
sketch10.addConstraint([
    Sketcher.Constraint("Coincident", 0, 2, 1, 1),
    Sketcher.Constraint("Coincident", 1, 2, 2, 1),
    Sketcher.Constraint("Tangent", 2, 2, 3, 1),
    Sketcher.Constraint("Tangent", 3, 2, 0, 1),
    Sketcher.Constraint("Horizontal", 0),
    Sketcher.Constraint("Vertical", 1),
    Sketcher.Constraint("Horizontal", 2),
    Sketcher.Constraint("Radius", 3, Q("0.25 in")),
    Sketcher.Constraint("DistanceX", -1, 1, 3, 3, Q("1 in")),
    Sketcher.Constraint("DistanceX", 0, 1, 0, 2, Q("16.933333 mm")),
    Sketcher.Constraint("DistanceY", 3, 3, -1, 1, Q("35.395009 mm")),
])
sketch10.setExpression("Constraints[7]", "Params.sketch10_radius")
pocket4 = body.newObject("PartDesign::Pocket", "Pocket003")
pocket4.Profile = sketch10
pocket4.Type = "UpToFirst"

# Sketch on XZ plane
sketch11 = body.newObject("Sketcher::SketchObject", "Sketch010")
sketch11.AttachmentSupport = (doc.getObject("XZ_Plane"), [""])
sketch11.MapMode = "FlatFace"
sketch11.AttachmentOffset = App.Placement(App.Vector(0, 0, -42.333333), App.Rotation())
sketch11.addGeometry([
    Part.LineSegment(App.Vector(-37.7, -49.4, 0), App.Vector(-37.7, -46.9, 0)),
    Part.LineSegment(App.Vector(-37.7, -46.9, 0), App.Vector(-37.2, -46.9, 0)),
    Part.LineSegment(App.Vector(-37.2, -46.9, 0), App.Vector(-37.2, -49.4, 0)),
    Part.LineSegment(App.Vector(-37.2, -49.4, 0), App.Vector(-37.7, -49.4, 0)),
], False)
sketch11.addConstraint([
    Sketcher.Constraint("Coincident", 0, 2, 1, 1),
    Sketcher.Constraint("Coincident", 1, 2, 2, 1),
    Sketcher.Constraint("Coincident", 2, 2, 3, 1),
    Sketcher.Constraint("Coincident", 3, 2, 0, 1),
    Sketcher.Constraint("Vertical", 0),
    Sketcher.Constraint("Horizontal", 1),
    Sketcher.Constraint("Vertical", 2),
    Sketcher.Constraint("Horizontal", 3),
    Sketcher.Constraint("DistanceY", 0, 1, 0, 2, Q("0.1 in")),
    Sketcher.Constraint("DistanceX", 1, 1, 1, 2, Q("0.02 in")),
    Sketcher.Constraint("DistanceX", 0, 2, -1, 1, Q("37.676675 mm")),
    Sketcher.Constraint("DistanceY", 0, 2, -1, 1, Q("46.909675 mm")),
])
sketch11.setExpression("Constraints[8]", "Params.sketch11_height")
sketch11.setExpression("Constraints[9]", "Params.sketch11_width")
pocket5 = body.newObject("PartDesign::Pocket", "Pocket004")
pocket5.Profile = sketch11
pocket5.Type = "UpToFirst"
pocket5.Reversed = True

doc.recompute()
